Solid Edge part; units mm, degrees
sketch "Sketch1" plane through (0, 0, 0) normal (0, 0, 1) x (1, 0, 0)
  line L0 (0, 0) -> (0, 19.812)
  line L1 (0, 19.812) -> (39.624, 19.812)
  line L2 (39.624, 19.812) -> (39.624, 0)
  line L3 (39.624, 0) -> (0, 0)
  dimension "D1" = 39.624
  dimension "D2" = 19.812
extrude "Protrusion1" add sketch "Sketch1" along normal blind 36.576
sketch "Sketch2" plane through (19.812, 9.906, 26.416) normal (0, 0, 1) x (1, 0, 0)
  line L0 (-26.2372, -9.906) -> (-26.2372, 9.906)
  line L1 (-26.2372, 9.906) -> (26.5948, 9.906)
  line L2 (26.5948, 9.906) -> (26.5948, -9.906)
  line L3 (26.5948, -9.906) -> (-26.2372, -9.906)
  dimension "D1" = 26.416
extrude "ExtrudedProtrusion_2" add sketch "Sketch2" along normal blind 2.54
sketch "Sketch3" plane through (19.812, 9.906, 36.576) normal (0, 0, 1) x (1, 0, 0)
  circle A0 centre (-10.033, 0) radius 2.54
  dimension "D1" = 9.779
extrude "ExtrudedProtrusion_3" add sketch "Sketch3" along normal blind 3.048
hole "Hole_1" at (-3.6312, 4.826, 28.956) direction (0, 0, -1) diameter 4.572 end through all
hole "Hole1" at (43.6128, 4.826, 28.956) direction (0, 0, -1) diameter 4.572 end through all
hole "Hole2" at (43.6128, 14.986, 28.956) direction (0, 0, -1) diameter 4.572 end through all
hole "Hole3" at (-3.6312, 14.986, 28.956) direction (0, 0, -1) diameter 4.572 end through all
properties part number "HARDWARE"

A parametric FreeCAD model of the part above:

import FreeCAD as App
import Part
import Sketcher
from FreeCAD import Vector
Q = App.Units.Quantity

doc = App.newDocument("Part")
params = doc.addObject("Spreadsheet::Sheet", "Params")
for row, (alias, value) in enumerate([
    ("sketch1_width", "1.56 in"),
    ("sketch1_height", "0.78 in"),
    ("pad1_length", "1.44 in"),
    ("sketch2_width", "2.08 in"),
    ("sketch2_height", "0.78 in"),
    ("pad2_length", "0.1 in"),
    ("sketch3_diameter", "0.2 in"),
    ("pad3_length", "0.12 in"),
    ("sketch4_diameter", "0.18 in"),
    ("hole_diameter", "0.18 in"),
    ("sketch5_diameter", "0.18 in"),
    ("hole2_diameter", "0.18 in"),
    ("sketch6_diameter", "0.18 in"),
    ("hole3_diameter", "0.18 in"),
    ("sketch7_diameter", "0.18 in"),
    ("hole4_diameter", "0.18 in"),
], start=1):
    params.set(f"A{row}", alias)
    params.set(f"B{row}", "=" + value)
    params.setAlias(f"B{row}", alias)

body = doc.addObject("PartDesign::Body", "Body")

sketch1 = doc.addObject("Sketcher::SketchObject", "Sketch")
body.addObject(sketch1)
sketch1.AttachmentSupport = (doc.XY_Plane, [""])
sketch1.MapMode = "FlatFace"
sketch1.addGeometry(Part.LineSegment(Vector(0, 20, 0), Vector(0, 0, 0)), False)
sketch1.addGeometry(Part.LineSegment(Vector(0, 0, 0), Vector(40, 0, 0)), False)
sketch1.addGeometry(Part.LineSegment(Vector(40, 0, 0), Vector(40, 20, 0)), False)
sketch1.addGeometry(Part.LineSegment(Vector(40, 20, 0), Vector(0, 20, 0)), False)
sketch1.addConstraint(Sketcher.Constraint("Coincident", 0, 2, 1, 1))
sketch1.addConstraint(Sketcher.Constraint("Coincident", 1, 2, 2, 1))
sketch1.addConstraint(Sketcher.Constraint("Coincident", 2, 2, 3, 1))
sketch1.addConstraint(Sketcher.Constraint("Coincident", 3, 2, 0, 1))
sketch1.addConstraint(Sketcher.Constraint("Vertical", 0))
sketch1.addConstraint(Sketcher.Constraint("Horizontal", 1))
sketch1.addConstraint(Sketcher.Constraint("Vertical", 2))
sketch1.addConstraint(Sketcher.Constraint("Horizontal", 3))
sketch1.addConstraint(Sketcher.Constraint("Coincident", 0, 2, -1, 1))
sketch1.addConstraint(Sketcher.Constraint("DistanceX", 1, 1, 1, 2, Q("1.56 in")))
sketch1.addConstraint(Sketcher.Constraint("DistanceY", 0, 2, 0, 1, Q("0.78 in")))
sketch1.setExpression("Constraints[9]", "Params.sketch1_width")
sketch1.setExpression("Constraints[10]", "Params.sketch1_height")
pad1 = doc.addObject("PartDesign::Pad", "Pad")
body.addObject(pad1)
pad1.Profile = sketch1
pad1.setExpression("Length", "Params.pad1_length")

sketch2 = doc.addObject("Sketcher::SketchObject", "Sketch001")
body.addObject(sketch2)
sketch2.AttachmentSupport = (doc.XY_Plane, [""])
sketch2.MapMode = "FlatFace"
sketch2.AttachmentOffset = App.Placement(Vector(0, 0, 1.04 * 25.4), App.Rotation())
sketch2.addGeometry(Part.LineSegment(Vector(-6, 20, 0), Vector(-6, 0, 0)), False)
sketch2.addGeometry(Part.LineSegment(Vector(-6, 0, 0), Vector(46, 0, 0)), False)
sketch2.addGeometry(Part.LineSegment(Vector(46, 0, 0), Vector(46, 20, 0)), False)
sketch2.addGeometry(Part.LineSegment(Vector(46, 20, 0), Vector(-6, 20, 0)), False)
sketch2.addConstraint(Sketcher.Constraint("Coincident", 0, 2, 1, 1))
sketch2.addConstraint(Sketcher.Constraint("Coincident", 1, 2, 2, 1))
sketch2.addConstraint(Sketcher.Constraint("Coincident", 2, 2, 3, 1))
sketch2.addConstraint(Sketcher.Constraint("Coincident", 3, 2, 0, 1))
sketch2.addConstraint(Sketcher.Constraint("Vertical", 0))
sketch2.addConstraint(Sketcher.Constraint("Horizontal", 1))
sketch2.addConstraint(Sketcher.Constraint("Vertical", 2))
sketch2.addConstraint(Sketcher.Constraint("Horizontal", 3))
sketch2.addConstraint(Sketcher.Constraint("PointOnObject", 0, 2, -1))
sketch2.addConstraint(Sketcher.Constraint("DistanceX", 1, 1, 1, 2, Q("2.08 in")))
sketch2.addConstraint(Sketcher.Constraint("DistanceY", 0, 2, 0, 1, Q("0.78 in")))
sketch2.addConstraint(Sketcher.Constraint("DistanceX", 0, 2, -1, 1, Q("6.4252 mm")))
sketch2.setExpression("Constraints[9]", "Params.sketch2_width")
sketch2.setExpression("Constraints[10]", "Params.sketch2_height")
pad2 = doc.addObject("PartDesign::Pad", "Pad001")
body.addObject(pad2)
pad2.Profile = sketch2
pad2.setExpression("Length", "Params.pad2_length")

sketch3 = doc.addObject("Sketcher::SketchObject", "Sketch002")
body.addObject(sketch3)
sketch3.AttachmentSupport = (doc.XY_Plane, [""])
sketch3.MapMode = "FlatFace"
sketch3.AttachmentOffset = App.Placement(Vector(0, 0, 1.44 * 25.4), App.Rotation())
sketch3.addGeometry(Part.Circle(Vector(9.8, 9.9, 0), Vector(0, 0, 1), 2.5), False)
sketch3.addConstraint(Sketcher.Constraint("Diameter", 0, Q("0.2 in")))
sketch3.addConstraint(Sketcher.Constraint("DistanceY", -1, 1, 0, 3, Q("0.39 in")))
sketch3.addConstraint(Sketcher.Constraint("DistanceX", -1, 1, 0, 3, Q("0.385 in")))
sketch3.setExpression("Constraints[0]", "Params.sketch3_diameter")
pad3 = doc.addObject("PartDesign::Pad", "Pad002")
body.addObject(pad3)
pad3.Profile = sketch3
pad3.setExpression("Length", "Params.pad3_length")

sketch4 = doc.addObject("Sketcher::SketchObject", "Sketch003")
body.addObject(sketch4)
sketch4.AttachmentSupport = (doc.XY_Plane, [""])
sketch4.MapMode = "FlatFace"
sketch4.AttachmentOffset = App.Placement(Vector(0, 0, 1.14 * 25.4), App.Rotation())
sketch4.addGeometry(Part.Circle(Vector(-3.6, 4.8, 0), Vector(0, 0, 1), 2.3), False)
sketch4.addConstraint(Sketcher.Constraint("Diameter", 0, Q("0.18 in")))
sketch4.addConstraint(Sketcher.Constraint("DistanceY", -1, 1, 0, 3, Q("0.19 in")))
sketch4.addConstraint(Sketcher.Constraint("DistanceX", 0, 3, -1, 1, Q("3.6312 mm")))
sketch4.setExpression("Constraints[0]", "Params.sketch4_diameter")
doc.recompute()
hole = doc.addObject("PartDesign::Hole", "Hole")
body.addObject(hole)
hole.Profile = sketch4
hole.ThreadType = "None"
hole.setExpression("Diameter", "Params.hole_diameter")
hole.DepthType = "ThroughAll"

sketch5 = doc.addObject("Sketcher::SketchObject", "Sketch004")
body.addObject(sketch5)
sketch5.AttachmentSupport = (doc.XY_Plane, [""])
sketch5.MapMode = "FlatFace"
sketch5.AttachmentOffset = App.Placement(Vector(0, 0, 1.14 * 25.4), App.Rotation())
sketch5.addGeometry(Part.Circle(Vector(43.6, 4.8, 0), Vector(0, 0, 1), 2.3), False)
sketch5.addConstraint(Sketcher.Constraint("Diameter", 0, Q("0.18 in")))
sketch5.addConstraint(Sketcher.Constraint("DistanceY", -1, 1, 0, 3, Q("0.19 in")))
sketch5.addConstraint(Sketcher.Constraint("DistanceX", -1, 1, 0, 3, Q("43.6128 mm")))
sketch5.setExpression("Constraints[0]", "Params.sketch5_diameter")
doc.recompute()
hole2 = doc.addObject("PartDesign::Hole", "Hole001")
body.addObject(hole2)
hole2.Profile = sketch5
hole2.ThreadType = "None"
hole2.setExpression("Diameter", "Params.hole2_diameter")
hole2.DepthType = "ThroughAll"

sketch6 = doc.addObject("Sketcher::SketchObject", "Sketch005")
body.addObject(sketch6)
sketch6.AttachmentSupport = (doc.XY_Plane, [""])
sketch6.MapMode = "FlatFace"
sketch6.AttachmentOffset = App.Placement(Vector(0, 0, 1.14 * 25.4), App.Rotation())
sketch6.addGeometry(Part.Circle(Vector(43.6, 15, 0), Vector(0, 0, 1), 2.3), False)
sketch6.addConstraint(Sketcher.Constraint("Diameter", 0, Q("0.18 in")))
sketch6.addConstraint(Sketcher.Constraint("DistanceY", -1, 1, 0, 3, Q("0.59 in")))
sketch6.addConstraint(Sketcher.Constraint("DistanceX", -1, 1, 0, 3, Q("43.6128 mm")))
sketch6.setExpression("Constraints[0]", "Params.sketch6_diameter")
doc.recompute()
hole3 = doc.addObject("PartDesign::Hole", "Hole002")
body.addObject(hole3)
hole3.Profile = sketch6
hole3.ThreadType = "None"
hole3.setExpression("Diameter", "Params.hole3_diameter")
hole3.DepthType = "ThroughAll"

sketch7 = doc.addObject("Sketcher::SketchObject", "Sketch006")
body.addObject(sketch7)
sketch7.AttachmentSupport = (doc.XY_Plane, [""])
sketch7.MapMode = "FlatFace"
sketch7.AttachmentOffset = App.Placement(Vector(0, 0, 1.14 * 25.4), App.Rotation())
sketch7.addGeometry(Part.Circle(Vector(-3.6, 15, 0), Vector(0, 0, 1), 2.3), False)
sketch7.addConstraint(Sketcher.Constraint("Diameter", 0, Q("0.18 in")))
sketch7.addConstraint(Sketcher.Constraint("DistanceY", -1, 1, 0, 3, Q("0.59 in")))
sketch7.addConstraint(Sketcher.Constraint("DistanceX", 0, 3, -1, 1, Q("3.6312 mm")))
sketch7.setExpression("Constraints[0]", "Params.sketch7_diameter")
doc.recompute()
hole4 = doc.addObject("PartDesign::Hole", "Hole003")
body.addObject(hole4)
hole4.Profile = sketch7
hole4.ThreadType = "None"
hole4.setExpression("Diameter", "Params.hole4_diameter")
hole4.DepthType = "ThroughAll"

doc.recompute()
